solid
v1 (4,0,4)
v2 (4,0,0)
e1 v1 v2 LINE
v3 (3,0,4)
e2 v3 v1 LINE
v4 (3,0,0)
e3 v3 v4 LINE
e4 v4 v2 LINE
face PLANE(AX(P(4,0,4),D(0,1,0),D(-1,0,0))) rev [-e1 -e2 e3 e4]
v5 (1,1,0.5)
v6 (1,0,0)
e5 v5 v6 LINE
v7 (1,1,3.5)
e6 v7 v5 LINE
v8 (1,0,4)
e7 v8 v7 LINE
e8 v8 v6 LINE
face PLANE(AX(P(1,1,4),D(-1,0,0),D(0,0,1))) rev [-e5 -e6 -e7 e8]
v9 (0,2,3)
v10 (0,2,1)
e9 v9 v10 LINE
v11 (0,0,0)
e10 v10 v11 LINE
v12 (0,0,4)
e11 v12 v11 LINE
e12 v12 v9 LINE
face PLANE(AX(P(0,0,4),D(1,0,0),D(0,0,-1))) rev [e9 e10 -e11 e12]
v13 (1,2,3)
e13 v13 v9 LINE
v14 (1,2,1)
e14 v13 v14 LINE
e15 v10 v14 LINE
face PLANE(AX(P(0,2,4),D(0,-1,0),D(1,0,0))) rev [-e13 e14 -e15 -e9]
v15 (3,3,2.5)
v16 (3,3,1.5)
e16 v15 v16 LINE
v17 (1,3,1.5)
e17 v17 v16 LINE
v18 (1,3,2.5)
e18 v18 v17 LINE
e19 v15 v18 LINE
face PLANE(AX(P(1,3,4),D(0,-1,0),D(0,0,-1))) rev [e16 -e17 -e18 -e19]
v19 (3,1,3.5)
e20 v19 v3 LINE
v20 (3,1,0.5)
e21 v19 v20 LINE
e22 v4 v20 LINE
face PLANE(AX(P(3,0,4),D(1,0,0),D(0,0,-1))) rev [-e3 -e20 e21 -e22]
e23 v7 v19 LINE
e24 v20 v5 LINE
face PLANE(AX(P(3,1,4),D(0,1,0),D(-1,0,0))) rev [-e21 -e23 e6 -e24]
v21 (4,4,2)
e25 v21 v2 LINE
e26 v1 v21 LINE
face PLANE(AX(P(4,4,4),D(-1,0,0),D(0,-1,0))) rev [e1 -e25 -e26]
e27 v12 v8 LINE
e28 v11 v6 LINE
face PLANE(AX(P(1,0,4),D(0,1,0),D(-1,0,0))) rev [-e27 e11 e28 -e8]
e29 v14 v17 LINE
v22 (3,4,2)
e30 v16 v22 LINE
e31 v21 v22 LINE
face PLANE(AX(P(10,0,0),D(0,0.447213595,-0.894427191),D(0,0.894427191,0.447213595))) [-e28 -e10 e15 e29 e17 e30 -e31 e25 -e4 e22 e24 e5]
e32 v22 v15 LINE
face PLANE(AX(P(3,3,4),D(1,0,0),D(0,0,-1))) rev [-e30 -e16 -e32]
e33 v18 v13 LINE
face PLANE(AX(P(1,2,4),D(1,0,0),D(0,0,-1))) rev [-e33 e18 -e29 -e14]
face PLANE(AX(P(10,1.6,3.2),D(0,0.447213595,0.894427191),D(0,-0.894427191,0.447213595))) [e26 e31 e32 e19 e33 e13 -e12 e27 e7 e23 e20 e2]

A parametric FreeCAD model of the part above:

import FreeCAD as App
import Part
import Sketcher
Q = App.Units.Quantity

doc = App.newDocument("Part")
params = doc.addObject("Spreadsheet::Sheet", "Params")
for row, (alias, value) in enumerate([
    ("sketch1_width", "1 mm"),
    ("sketch1_width2", "2 mm"),
    ("pad1_length", "4 mm"),
    ("sketch2_width", "4 mm"),
    ("sketch2_height", "2 mm"),
    ("pocket1_length", "10 mm"),
], start=1):
    params.set(f"A{row}", alias)
    params.set(f"B{row}", "=" + value)
    params.setAlias(f"B{row}", alias)

body = doc.addObject("PartDesign::Body", "Body")

sketch1 = body.newObject("Sketcher::SketchObject", "Sketch")
sketch1.AttachmentSupport = (doc.getObject("XY_Plane"), [""])
sketch1.MapMode = "FlatFace"
sketch1.addGeometry(Part.LineSegment(App.Vector(0, 2, 0), App.Vector(0, 0, 0)), False)
sketch1.addGeometry(Part.LineSegment(App.Vector(0, 0, 0), App.Vector(1, 0, 0)), False)
sketch1.addGeometry(Part.LineSegment(App.Vector(1, 0, 0), App.Vector(1, 1, 0)), False)
sketch1.addGeometry(Part.LineSegment(App.Vector(1, 1, 0), App.Vector(3, 1, 0)), False)
sketch1.addGeometry(Part.LineSegment(App.Vector(3, 1, 0), App.Vector(3, 0, 0)), False)
sketch1.addGeometry(Part.LineSegment(App.Vector(3, 0, 0), App.Vector(4, 0, 0)), False)
sketch1.addGeometry(Part.LineSegment(App.Vector(4, 0, 0), App.Vector(4, 4, 0)), False)
sketch1.addGeometry(Part.LineSegment(App.Vector(4, 4, 0), App.Vector(3, 4, 0)), False)
sketch1.addGeometry(Part.LineSegment(App.Vector(3, 4, 0), App.Vector(3, 3, 0)), False)
sketch1.addGeometry(Part.LineSegment(App.Vector(3, 3, 0), App.Vector(1, 3, 0)), False)
sketch1.addGeometry(Part.LineSegment(App.Vector(1, 3, 0), App.Vector(1, 2, 0)), False)
sketch1.addGeometry(Part.LineSegment(App.Vector(1, 2, 0), App.Vector(0, 2, 0)), False)
sketch1.addConstraint(Sketcher.Constraint("Coincident", 0, 2, 1, 1))
sketch1.addConstraint(Sketcher.Constraint("Coincident", 1, 2, 2, 1))
sketch1.addConstraint(Sketcher.Constraint("Coincident", 2, 2, 3, 1))
sketch1.addConstraint(Sketcher.Constraint("Coincident", 3, 2, 4, 1))
sketch1.addConstraint(Sketcher.Constraint("Coincident", 4, 2, 5, 1))
sketch1.addConstraint(Sketcher.Constraint("Coincident", 5, 2, 6, 1))
sketch1.addConstraint(Sketcher.Constraint("Coincident", 6, 2, 7, 1))
sketch1.addConstraint(Sketcher.Constraint("Coincident", 7, 2, 8, 1))
sketch1.addConstraint(Sketcher.Constraint("Coincident", 8, 2, 9, 1))
sketch1.addConstraint(Sketcher.Constraint("Coincident", 9, 2, 10, 1))
sketch1.addConstraint(Sketcher.Constraint("Coincident", 10, 2, 11, 1))
sketch1.addConstraint(Sketcher.Constraint("Coincident", 11, 2, 0, 1))
sketch1.addConstraint(Sketcher.Constraint("Vertical", 0))
sketch1.addConstraint(Sketcher.Constraint("Horizontal", 1))
sketch1.addConstraint(Sketcher.Constraint("Vertical", 2))
sketch1.addConstraint(Sketcher.Constraint("Horizontal", 3))
sketch1.addConstraint(Sketcher.Constraint("Vertical", 4))
sketch1.addConstraint(Sketcher.Constraint("Horizontal", 5))
sketch1.addConstraint(Sketcher.Constraint("Vertical", 6))
sketch1.addConstraint(Sketcher.Constraint("Horizontal", 7))
sketch1.addConstraint(Sketcher.Constraint("Vertical", 8))
sketch1.addConstraint(Sketcher.Constraint("Horizontal", 9))
sketch1.addConstraint(Sketcher.Constraint("Vertical", 10))
sketch1.addConstraint(Sketcher.Constraint("Horizontal", 11))
sketch1.addConstraint(Sketcher.Constraint("Coincident", 0, 2, -1, 1))
sketch1.addConstraint(Sketcher.Constraint("PointOnObject", 4, 2, -1))
sketch1.addConstraint(Sketcher.Constraint("Vertical", 4, 2, 7, 2))
sketch1.addConstraint(Sketcher.Constraint("Vertical", 2, 2, 9, 2))
sketch1.addConstraint(Sketcher.Constraint("Equal", 1, 5))
sketch1.addConstraint(Sketcher.Constraint("Equal", 9, 0))
sketch1.addConstraint(Sketcher.Constraint("Equal", 11, 2))
sketch1.addConstraint(Sketcher.Constraint("Equal", 4, 8))
sketch1.addConstraint(Sketcher.Constraint("Equal", 8, 10))
sketch1.addConstraint(Sketcher.Constraint("DistanceX", 1, 1, 1, 2, Q("1 mm")))
sketch1.addConstraint(Sketcher.Constraint("DistanceX", 3, 1, 3, 2, Q("2 mm")))
sketch1.setExpression("Constraints[33]", "Params.sketch1_width")
sketch1.setExpression("Constraints[34]", "Params.sketch1_width2")
pad1 = body.newObject("PartDesign::Pad", "Pad")
pad1.Profile = sketch1
pad1.setExpression("Length", "Params.pad1_length")

sketch2 = body.newObject("Sketcher::SketchObject", "Sketch001")
sketch2.AttachmentSupport = (doc.getObject("YZ_Plane"), [""])
sketch2.MapMode = "FlatFace"
sketch2.addGeometry(Part.LineSegment(App.Vector(4, 2, 0), App.Vector(4, 0, 0)), False)
sketch2.addGeometry(Part.LineSegment(App.Vector(4, 0, 0), App.Vector(0, 0, 0)), False)
sketch2.addGeometry(Part.LineSegment(App.Vector(0, 0, 0), App.Vector(4, 2, 0)), False)
sketch2.addGeometry(Part.LineSegment(App.Vector(4, 2, 0), App.Vector(0, 4, 0)), False)
sketch2.addGeometry(Part.LineSegment(App.Vector(0, 4, 0), App.Vector(4, 4, 0)), False)
sketch2.addGeometry(Part.LineSegment(App.Vector(4, 4, 0), App.Vector(4, 2, 0)), False)
sketch2.addConstraint(Sketcher.Constraint("Coincident", 0, 2, 1, 1))
sketch2.addConstraint(Sketcher.Constraint("Coincident", 1, 2, 2, 1))
sketch2.addConstraint(Sketcher.Constraint("Coincident", 2, 2, 0, 1))
sketch2.addConstraint(Sketcher.Constraint("Coincident", 3, 2, 4, 1))
sketch2.addConstraint(Sketcher.Constraint("Coincident", 4, 2, 5, 1))
sketch2.addConstraint(Sketcher.Constraint("Coincident", 5, 2, 3, 1))
sketch2.addConstraint(Sketcher.Constraint("Vertical", 0))
sketch2.addConstraint(Sketcher.Constraint("Horizontal", 1))
sketch2.addConstraint(Sketcher.Constraint("Horizontal", 4))
sketch2.addConstraint(Sketcher.Constraint("Vertical", 5))
sketch2.addConstraint(Sketcher.Constraint("Coincident", 1, 2, -1, 1))
sketch2.addConstraint(Sketcher.Constraint("Coincident", 5, 2, 2, 2))
sketch2.addConstraint(Sketcher.Constraint("PointOnObject", 3, 2, -2))
sketch2.addConstraint(Sketcher.Constraint("Equal", 0, 5))
sketch2.addConstraint(Sketcher.Constraint("DistanceX", 1, 2, 1, 1, Q("4 mm")))
sketch2.addConstraint(Sketcher.Constraint("DistanceY", 0, 2, 0, 1, Q("2 mm")))
sketch2.setExpression("Constraints[14]", "Params.sketch2_width")
sketch2.setExpression("Constraints[15]", "Params.sketch2_height")
pocket1 = body.newObject("PartDesign::Pocket", "Pocket")
pocket1.Profile = sketch2
pocket1.setExpression("Length", "Params.pocket1_length")
pocket1.Reversed = True

doc.recompute()
